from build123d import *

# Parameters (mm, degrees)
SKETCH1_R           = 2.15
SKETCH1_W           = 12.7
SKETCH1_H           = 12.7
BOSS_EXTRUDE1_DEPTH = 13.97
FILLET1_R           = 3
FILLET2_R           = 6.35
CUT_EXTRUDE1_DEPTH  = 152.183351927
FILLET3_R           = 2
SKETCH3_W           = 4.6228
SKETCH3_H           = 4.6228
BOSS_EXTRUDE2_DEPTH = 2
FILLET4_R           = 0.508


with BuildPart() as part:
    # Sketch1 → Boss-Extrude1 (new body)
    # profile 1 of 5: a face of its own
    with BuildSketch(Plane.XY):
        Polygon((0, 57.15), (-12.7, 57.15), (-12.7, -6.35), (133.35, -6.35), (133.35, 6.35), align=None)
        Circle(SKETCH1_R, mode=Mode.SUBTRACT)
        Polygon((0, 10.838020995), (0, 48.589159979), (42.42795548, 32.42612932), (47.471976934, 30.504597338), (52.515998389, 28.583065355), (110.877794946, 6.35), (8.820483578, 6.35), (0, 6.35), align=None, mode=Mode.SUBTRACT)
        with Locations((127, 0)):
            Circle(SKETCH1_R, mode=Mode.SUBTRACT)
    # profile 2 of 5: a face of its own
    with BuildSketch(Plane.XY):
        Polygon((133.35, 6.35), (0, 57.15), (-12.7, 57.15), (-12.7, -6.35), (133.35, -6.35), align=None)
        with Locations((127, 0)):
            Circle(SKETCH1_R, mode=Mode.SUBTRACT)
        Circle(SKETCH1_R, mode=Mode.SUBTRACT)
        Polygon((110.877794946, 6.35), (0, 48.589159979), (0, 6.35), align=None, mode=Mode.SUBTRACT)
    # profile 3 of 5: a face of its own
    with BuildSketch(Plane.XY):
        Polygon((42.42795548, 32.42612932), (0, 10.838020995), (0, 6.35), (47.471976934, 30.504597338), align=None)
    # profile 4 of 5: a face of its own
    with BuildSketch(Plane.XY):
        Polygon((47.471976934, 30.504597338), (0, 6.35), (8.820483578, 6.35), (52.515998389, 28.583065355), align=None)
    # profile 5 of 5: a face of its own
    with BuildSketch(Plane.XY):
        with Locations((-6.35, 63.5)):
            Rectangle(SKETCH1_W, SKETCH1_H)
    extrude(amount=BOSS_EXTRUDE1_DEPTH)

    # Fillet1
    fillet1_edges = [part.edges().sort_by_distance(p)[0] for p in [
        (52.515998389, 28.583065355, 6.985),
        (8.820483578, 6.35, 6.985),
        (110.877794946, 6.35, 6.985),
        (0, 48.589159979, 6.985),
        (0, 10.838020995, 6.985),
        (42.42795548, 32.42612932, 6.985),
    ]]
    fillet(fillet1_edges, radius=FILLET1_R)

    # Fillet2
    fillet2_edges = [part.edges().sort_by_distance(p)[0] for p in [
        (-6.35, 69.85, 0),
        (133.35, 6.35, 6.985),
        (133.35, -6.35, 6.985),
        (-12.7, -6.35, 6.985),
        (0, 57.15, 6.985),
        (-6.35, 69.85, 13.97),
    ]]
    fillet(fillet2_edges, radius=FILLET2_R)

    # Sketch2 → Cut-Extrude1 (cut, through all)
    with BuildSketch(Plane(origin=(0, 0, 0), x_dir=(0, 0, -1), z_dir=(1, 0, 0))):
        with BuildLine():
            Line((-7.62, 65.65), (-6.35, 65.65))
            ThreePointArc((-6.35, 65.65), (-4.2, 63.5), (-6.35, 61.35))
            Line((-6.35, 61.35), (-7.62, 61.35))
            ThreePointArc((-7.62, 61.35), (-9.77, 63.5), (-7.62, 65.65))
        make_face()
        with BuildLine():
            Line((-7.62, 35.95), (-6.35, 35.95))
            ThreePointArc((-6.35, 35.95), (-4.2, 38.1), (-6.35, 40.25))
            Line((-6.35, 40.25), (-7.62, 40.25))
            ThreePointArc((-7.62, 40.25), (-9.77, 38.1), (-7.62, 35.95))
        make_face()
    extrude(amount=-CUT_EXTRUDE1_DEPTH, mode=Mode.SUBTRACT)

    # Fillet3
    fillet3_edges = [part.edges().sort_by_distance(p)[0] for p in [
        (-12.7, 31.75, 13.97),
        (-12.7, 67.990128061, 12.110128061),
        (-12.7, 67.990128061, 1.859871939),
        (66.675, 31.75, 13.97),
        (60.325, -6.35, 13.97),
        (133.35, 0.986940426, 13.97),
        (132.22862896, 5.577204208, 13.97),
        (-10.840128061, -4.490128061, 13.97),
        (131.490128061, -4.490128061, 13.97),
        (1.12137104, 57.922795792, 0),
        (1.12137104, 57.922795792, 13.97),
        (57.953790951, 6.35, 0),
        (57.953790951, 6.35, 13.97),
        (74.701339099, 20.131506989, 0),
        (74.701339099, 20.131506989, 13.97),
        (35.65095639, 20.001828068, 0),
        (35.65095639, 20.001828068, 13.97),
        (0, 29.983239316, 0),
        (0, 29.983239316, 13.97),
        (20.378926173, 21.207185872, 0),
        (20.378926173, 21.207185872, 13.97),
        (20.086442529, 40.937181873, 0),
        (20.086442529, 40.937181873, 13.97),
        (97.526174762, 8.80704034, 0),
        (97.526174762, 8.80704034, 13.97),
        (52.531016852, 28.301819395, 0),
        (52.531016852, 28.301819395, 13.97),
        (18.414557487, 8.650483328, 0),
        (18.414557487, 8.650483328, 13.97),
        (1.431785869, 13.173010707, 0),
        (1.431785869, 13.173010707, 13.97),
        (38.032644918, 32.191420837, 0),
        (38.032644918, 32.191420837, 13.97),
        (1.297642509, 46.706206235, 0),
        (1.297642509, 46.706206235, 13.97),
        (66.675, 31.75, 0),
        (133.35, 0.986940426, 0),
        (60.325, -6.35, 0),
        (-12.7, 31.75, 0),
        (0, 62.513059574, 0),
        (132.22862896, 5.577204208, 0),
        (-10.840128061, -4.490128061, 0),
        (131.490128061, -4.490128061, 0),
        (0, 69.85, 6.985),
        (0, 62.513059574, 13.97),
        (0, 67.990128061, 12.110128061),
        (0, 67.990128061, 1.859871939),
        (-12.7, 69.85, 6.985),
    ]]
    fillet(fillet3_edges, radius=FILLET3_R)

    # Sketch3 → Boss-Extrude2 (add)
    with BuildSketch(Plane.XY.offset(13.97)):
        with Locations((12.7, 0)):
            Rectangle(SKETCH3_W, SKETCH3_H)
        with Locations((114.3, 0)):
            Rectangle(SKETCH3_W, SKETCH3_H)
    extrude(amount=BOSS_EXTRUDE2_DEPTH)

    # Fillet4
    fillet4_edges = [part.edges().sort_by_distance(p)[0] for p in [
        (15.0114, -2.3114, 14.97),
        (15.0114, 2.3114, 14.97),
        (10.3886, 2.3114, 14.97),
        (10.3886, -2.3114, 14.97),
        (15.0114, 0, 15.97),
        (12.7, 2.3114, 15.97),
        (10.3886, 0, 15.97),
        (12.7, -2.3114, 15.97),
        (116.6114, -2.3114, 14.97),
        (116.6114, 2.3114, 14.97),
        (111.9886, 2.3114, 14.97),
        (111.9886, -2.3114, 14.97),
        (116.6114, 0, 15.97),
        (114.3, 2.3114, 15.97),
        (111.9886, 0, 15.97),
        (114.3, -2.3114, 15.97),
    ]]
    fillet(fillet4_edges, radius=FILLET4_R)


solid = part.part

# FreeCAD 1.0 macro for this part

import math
import FreeCAD as App
import Part
import Sketcher
from FreeCAD import Vector
Q = App.Units.Quantity


def edges_at(feature, points):
    """Names of the edges that pass closest to the given points."""
    edges = feature.Shape.Edges
    near = lambda p: min(range(len(edges)), key=lambda i: edges[i].distToShape(Part.Vertex(*p))[0])
    return sorted({f"Edge{near(p) + 1}" for p in points})


def add_polygon(sketch, points):
    """Adds a closed chain of lines whose ends are joined by coincident constraints."""
    first, n = sketch.GeometryCount, len(points)
    for a, b in zip(points, points[1:] + points[:1]):
        sketch.addGeometry(Part.LineSegment(App.Vector(*a, 0), App.Vector(*b, 0)), False)
    for i in range(n):
        sketch.addConstraint(Sketcher.Constraint("Coincident", first + i, 2, first + (i + 1) % n, 1))

doc = App.newDocument("Part")
body = doc.addObject("PartDesign::Body", "Body")

sketch1 = body.newObject("Sketcher::SketchObject", "Sketch")
sketch1.AttachmentSupport = (doc.getObject("XY_Plane"), [""])
sketch1.MapMode = "FlatFace"
add_polygon(sketch1, [(133.3, 6.3), (0, 57.1), (0, 69.8), (-12.7, 69.8), (-12.7, -6.3), (133.3, -6.3)])
sketch1.addGeometry(Part.Circle(Vector(0, 0, 0), Vector(0, 0, 1), 2.1), False)
sketch1.addGeometry(Part.Circle(Vector(127, 0, 0), Vector(0, 0, 1), 2.1), False)
add_polygon(sketch1, [(0, 10.8), (0, 48.6), (42.4, 32.4)])
add_polygon(sketch1, [(110.9, 6.3), (8.8, 6.3), (52.5, 28.6)])
sketch1.addConstraint([
    Sketcher.Constraint("Vertical", 1),
    Sketcher.Constraint("Horizontal", 2),
    Sketcher.Constraint("Vertical", 3),
    Sketcher.Constraint("Horizontal", 4),
    Sketcher.Constraint("Vertical", 5),
    Sketcher.Constraint("Vertical", 8),
    Sketcher.Constraint("Horizontal", 11),
    Sketcher.Constraint("Coincident", 6, 3, -1, 1),
    Sketcher.Constraint("Equal", 6, 7),
    Sketcher.Constraint("PointOnObject", 7, 3, -1),
    Sketcher.Constraint("PointOnObject", 0, 2, -2),
    Sketcher.Constraint("PointOnObject", 8, 2, -2),
    Sketcher.Constraint("Parallel", 0, 9),
    Sketcher.Constraint("Parallel", 10, 12),
    Sketcher.Constraint("Parallel", 9, 13),
    Sketcher.Constraint("Horizontal", 5, 2, 11, 2),
    Sketcher.Constraint("Equal", 2, 1),
    Sketcher.Constraint("Equal", 1, 5),
    Sketcher.Constraint("DistanceY", 3, 2, 3, 1, Q("3 in")),
    Sketcher.Constraint("DistanceX", 2, 2, 2, 1, Q("0.5 in")),
    Sketcher.Constraint("DistanceX", -1, 1, 7, 3, Q("5 in")),
    Sketcher.Constraint("DistanceX", 4, 1, 4, 2, Q("5.75 in")),
    Sketcher.Constraint("Diameter", 6, Q("4.3 mm")),
    Sketcher.Constraint("DistanceY", -1, 1, 0, 2, Q("2.25 in")),
    Sketcher.Constraint("DistanceX", 11, 2, 11, 1, Q("102.057311 mm")),
    Sketcher.Constraint("DistanceY", 8, 1, 8, 2, Q("37.751139 mm")),
    Sketcher.Constraint("DistanceX", -1, 1, 12, 2, Q("52.515998 mm")),
    Sketcher.Constraint("Distance", 10, Q("47.604389 mm")),
    Sketcher.Constraint("DistanceY", -1, 1, 8, 2, Q("48.58916 mm")),
])
pad1 = body.newObject("PartDesign::Pad", "Pad")
pad1.Profile = sketch1
pad1.Length = Q("0.55 in")
doc.recompute()

fillet = body.newObject("PartDesign::Fillet", "Fillet")
fillet.Base = (pad1, edges_at(pad1, [
    (52.516, 28.583, 6.985),
    (8.82, 6.35, 6.985),
    (110.878, 6.35, 6.985),
    (0, 48.589, 6.985),
    (0, 10.838, 6.985),
    (42.428, 32.426, 6.985),
]))
fillet.Radius = 3
doc.recompute()

fillet2 = body.newObject("PartDesign::Fillet", "Fillet001")
fillet2.Base = (fillet, edges_at(fillet, [
    (-6.35, 69.85, 0),
    (133.35, 6.35, 6.985),
    (133.35, -6.35, 6.985),
    (-12.7, -6.35, 6.985),
    (0, 57.15, 6.985),
    (-6.35, 69.85, 13.97),
]))
fillet2.Radius = Q("0.25 in")

sketch2 = body.newObject("Sketcher::SketchObject", "Sketch001")
sketch2.AttachmentSupport = (doc.getObject("YZ_Plane"), [""])
sketch2.MapMode = "FlatFace"
sketch2.addGeometry([
    Part.LineSegment(Vector(65.7, 6.3, 0), Vector(65.7, 7.6, 0)),
    Part.ArcOfCircle(Part.Circle(Vector(63.5, 7.6, 0), Vector(0, 0, 1), 2.1), math.radians(0), math.radians(180)),
    Part.LineSegment(Vector(61.4, 7.6, 0), Vector(61.4, 6.3, 0)),
    Part.ArcOfCircle(Part.Circle(Vector(63.5, 6.3, 0), Vector(0, 0, 1), 2.1), math.radians(180), math.radians(360)),
    Part.LineSegment(Vector(36, 7.6, 0), Vector(36, 6.3, 0)),
    Part.ArcOfCircle(Part.Circle(Vector(38.1, 6.3, 0), Vector(0, 0, 1), 2.1), math.radians(180), math.radians(360)),
    Part.LineSegment(Vector(40.2, 6.3, 0), Vector(40.2, 7.6, 0)),
    Part.ArcOfCircle(Part.Circle(Vector(38.1, 7.6, 0), Vector(0, 0, 1), 2.1), math.radians(0), math.radians(180)),
], False)
sketch2.addConstraint([
    Sketcher.Constraint("Tangent", 0, 2, 1, 1),
    Sketcher.Constraint("Tangent", 1, 2, 2, 1),
    Sketcher.Constraint("Tangent", 2, 2, 3, 1),
    Sketcher.Constraint("Tangent", 3, 2, 0, 1),
    Sketcher.Constraint("Tangent", 4, 2, 5, 1),
    Sketcher.Constraint("Tangent", 5, 2, 6, 1),
    Sketcher.Constraint("Tangent", 6, 2, 7, 1),
    Sketcher.Constraint("Tangent", 7, 2, 4, 1),
    Sketcher.Constraint("Vertical", 0),
    Sketcher.Constraint("Vertical", 2),
    Sketcher.Constraint("Vertical", 4),
    Sketcher.Constraint("Vertical", 6),
    Sketcher.Constraint("Equal", 3, 5),
    Sketcher.Constraint("Horizontal", 3, 3, 5, 3),
    Sketcher.Constraint("Horizontal", 1, 3, 7, 3),
    Sketcher.Constraint("DistanceX", 5, 3, 3, 3, Q("1 in")),
    Sketcher.Constraint("DistanceY", 0, 1, 0, 2, Q("0.05 in")),
    Sketcher.Constraint("DistanceX", -1, 1, 1, 3, Q("2.5 in")),
    Sketcher.Constraint("DistanceY", -1, 1, 1, 3, Q("0.3 in")),
    Sketcher.Constraint("Radius", 1, Q("2.15 mm")),
])
pocket1 = body.newObject("PartDesign::Pocket", "Pocket")
pocket1.Profile = sketch2
pocket1.Type = "ThroughAll"
doc.recompute()

fillet3 = body.newObject("PartDesign::Fillet", "Fillet002")
fillet3.Base = (pocket1, edges_at(pocket1, [
    (-12.7, 31.75, 13.97),
    (-12.7, 67.99, 12.11),
    (-12.7, 67.99, 1.86),
    (66.675, 31.75, 13.97),
    (60.325, -6.35, 13.97),
    (133.35, 0.987, 13.97),
    (132.229, 5.577, 13.97),
    (-10.84, -4.49, 13.97),
    (131.49, -4.49, 13.97),
    (1.121, 57.923, 0),
    (1.121, 57.923, 13.97),
    (57.954, 6.35, 0),
    (57.954, 6.35, 13.97),
    (74.701, 20.132, 0),
    (74.701, 20.132, 13.97),
    (35.651, 20.002, 0),
    (35.651, 20.002, 13.97),
    (0, 29.983, 0),
    (0, 29.983, 13.97),
    (20.379, 21.207, 0),
    (20.379, 21.207, 13.97),
    (20.086, 40.937, 0),
    (20.086, 40.937, 13.97),
    (97.526, 8.807, 0),
    (97.526, 8.807, 13.97),
    (52.531, 28.302, 0),
    (52.531, 28.302, 13.97),
    (18.415, 8.65, 0),
    (18.415, 8.65, 13.97),
    (1.432, 13.173, 0),
    (1.432, 13.173, 13.97),
    (38.033, 32.191, 0),
    (38.033, 32.191, 13.97),
    (1.298, 46.706, 0),
    (1.298, 46.706, 13.97),
    (66.675, 31.75, 0),
    (133.35, 0.987, 0),
    (60.325, -6.35, 0),
    (-12.7, 31.75, 0),
    (0, 62.513, 0),
    (132.229, 5.577, 0),
    (-10.84, -4.49, 0),
    (131.49, -4.49, 0),
    (0, 69.85, 6.985),
    (0, 62.513, 13.97),
    (0, 67.99, 12.11),
    (0, 67.99, 1.86),
    (-12.7, 69.85, 6.985),
]))
fillet3.Radius = 2

sketch3 = body.newObject("Sketcher::SketchObject", "Sketch002")
sketch3.AttachmentSupport = (doc.getObject("XY_Plane"), [""])
sketch3.MapMode = "FlatFace"
sketch3.AttachmentOffset = App.Placement(Vector(0, 0, 0.55 * 25.4), App.Rotation())
add_polygon(sketch3, [(10.4, 2.3), (10.4, -2.3), (15, -2.3), (15, 2.3)])
add_polygon(sketch3, [(112, 2.3), (112, -2.3), (116.6, -2.3), (116.6, 2.3)])
sketch3.addConstraint([
    Sketcher.Constraint("Vertical", 0),
    Sketcher.Constraint("Horizontal", 1),
    Sketcher.Constraint("Vertical", 2),
    Sketcher.Constraint("Horizontal", 3),
    Sketcher.Constraint("Vertical", 4),
    Sketcher.Constraint("Horizontal", 5),
    Sketcher.Constraint("Vertical", 6),
    Sketcher.Constraint("Horizontal", 7),
    Sketcher.Constraint("Horizontal", 1, 2, 4, 2),
    Sketcher.Constraint("Horizontal", 3, 2, 6, 2),
    Sketcher.Constraint("Equal", 3, 5),
    Sketcher.Constraint("Equal", 7, 0),
    Sketcher.Constraint("DistanceX", 0, 2, 4, 2, Q("4 in")),
    Sketcher.Constraint("DistanceX", 1, 1, 1, 2, Q("0.182 in")),
    Sketcher.Constraint("DistanceX", -1, 1, 0, 2, Q("0.409 in")),
    Sketcher.Constraint("DistanceY", 0, 2, -1, 1, Q("0.091 in")),
])
pad2 = body.newObject("PartDesign::Pad", "Pad001")
pad2.Profile = sketch3
pad2.Length = 2
doc.recompute()

fillet4 = body.newObject("PartDesign::Fillet", "Fillet003")
fillet4.Base = (pad2, edges_at(pad2, [
    (15.011, -2.311, 14.97),
    (15.011, 2.311, 14.97),
    (10.389, 2.311, 14.97),
    (10.389, -2.311, 14.97),
    (15.011, 0, 15.97),
    (12.7, 2.311, 15.97),
    (10.389, 0, 15.97),
    (12.7, -2.311, 15.97),
    (116.611, -2.311, 14.97),
    (116.611, 2.311, 14.97),
    (111.989, 2.311, 14.97),
    (111.989, -2.311, 14.97),
    (116.611, 0, 15.97),
    (114.3, 2.311, 15.97),
    (111.989, 0, 15.97),
    (114.3, -2.311, 15.97),
]))
fillet4.Radius = Q("0.02 in")

doc.recompute()
